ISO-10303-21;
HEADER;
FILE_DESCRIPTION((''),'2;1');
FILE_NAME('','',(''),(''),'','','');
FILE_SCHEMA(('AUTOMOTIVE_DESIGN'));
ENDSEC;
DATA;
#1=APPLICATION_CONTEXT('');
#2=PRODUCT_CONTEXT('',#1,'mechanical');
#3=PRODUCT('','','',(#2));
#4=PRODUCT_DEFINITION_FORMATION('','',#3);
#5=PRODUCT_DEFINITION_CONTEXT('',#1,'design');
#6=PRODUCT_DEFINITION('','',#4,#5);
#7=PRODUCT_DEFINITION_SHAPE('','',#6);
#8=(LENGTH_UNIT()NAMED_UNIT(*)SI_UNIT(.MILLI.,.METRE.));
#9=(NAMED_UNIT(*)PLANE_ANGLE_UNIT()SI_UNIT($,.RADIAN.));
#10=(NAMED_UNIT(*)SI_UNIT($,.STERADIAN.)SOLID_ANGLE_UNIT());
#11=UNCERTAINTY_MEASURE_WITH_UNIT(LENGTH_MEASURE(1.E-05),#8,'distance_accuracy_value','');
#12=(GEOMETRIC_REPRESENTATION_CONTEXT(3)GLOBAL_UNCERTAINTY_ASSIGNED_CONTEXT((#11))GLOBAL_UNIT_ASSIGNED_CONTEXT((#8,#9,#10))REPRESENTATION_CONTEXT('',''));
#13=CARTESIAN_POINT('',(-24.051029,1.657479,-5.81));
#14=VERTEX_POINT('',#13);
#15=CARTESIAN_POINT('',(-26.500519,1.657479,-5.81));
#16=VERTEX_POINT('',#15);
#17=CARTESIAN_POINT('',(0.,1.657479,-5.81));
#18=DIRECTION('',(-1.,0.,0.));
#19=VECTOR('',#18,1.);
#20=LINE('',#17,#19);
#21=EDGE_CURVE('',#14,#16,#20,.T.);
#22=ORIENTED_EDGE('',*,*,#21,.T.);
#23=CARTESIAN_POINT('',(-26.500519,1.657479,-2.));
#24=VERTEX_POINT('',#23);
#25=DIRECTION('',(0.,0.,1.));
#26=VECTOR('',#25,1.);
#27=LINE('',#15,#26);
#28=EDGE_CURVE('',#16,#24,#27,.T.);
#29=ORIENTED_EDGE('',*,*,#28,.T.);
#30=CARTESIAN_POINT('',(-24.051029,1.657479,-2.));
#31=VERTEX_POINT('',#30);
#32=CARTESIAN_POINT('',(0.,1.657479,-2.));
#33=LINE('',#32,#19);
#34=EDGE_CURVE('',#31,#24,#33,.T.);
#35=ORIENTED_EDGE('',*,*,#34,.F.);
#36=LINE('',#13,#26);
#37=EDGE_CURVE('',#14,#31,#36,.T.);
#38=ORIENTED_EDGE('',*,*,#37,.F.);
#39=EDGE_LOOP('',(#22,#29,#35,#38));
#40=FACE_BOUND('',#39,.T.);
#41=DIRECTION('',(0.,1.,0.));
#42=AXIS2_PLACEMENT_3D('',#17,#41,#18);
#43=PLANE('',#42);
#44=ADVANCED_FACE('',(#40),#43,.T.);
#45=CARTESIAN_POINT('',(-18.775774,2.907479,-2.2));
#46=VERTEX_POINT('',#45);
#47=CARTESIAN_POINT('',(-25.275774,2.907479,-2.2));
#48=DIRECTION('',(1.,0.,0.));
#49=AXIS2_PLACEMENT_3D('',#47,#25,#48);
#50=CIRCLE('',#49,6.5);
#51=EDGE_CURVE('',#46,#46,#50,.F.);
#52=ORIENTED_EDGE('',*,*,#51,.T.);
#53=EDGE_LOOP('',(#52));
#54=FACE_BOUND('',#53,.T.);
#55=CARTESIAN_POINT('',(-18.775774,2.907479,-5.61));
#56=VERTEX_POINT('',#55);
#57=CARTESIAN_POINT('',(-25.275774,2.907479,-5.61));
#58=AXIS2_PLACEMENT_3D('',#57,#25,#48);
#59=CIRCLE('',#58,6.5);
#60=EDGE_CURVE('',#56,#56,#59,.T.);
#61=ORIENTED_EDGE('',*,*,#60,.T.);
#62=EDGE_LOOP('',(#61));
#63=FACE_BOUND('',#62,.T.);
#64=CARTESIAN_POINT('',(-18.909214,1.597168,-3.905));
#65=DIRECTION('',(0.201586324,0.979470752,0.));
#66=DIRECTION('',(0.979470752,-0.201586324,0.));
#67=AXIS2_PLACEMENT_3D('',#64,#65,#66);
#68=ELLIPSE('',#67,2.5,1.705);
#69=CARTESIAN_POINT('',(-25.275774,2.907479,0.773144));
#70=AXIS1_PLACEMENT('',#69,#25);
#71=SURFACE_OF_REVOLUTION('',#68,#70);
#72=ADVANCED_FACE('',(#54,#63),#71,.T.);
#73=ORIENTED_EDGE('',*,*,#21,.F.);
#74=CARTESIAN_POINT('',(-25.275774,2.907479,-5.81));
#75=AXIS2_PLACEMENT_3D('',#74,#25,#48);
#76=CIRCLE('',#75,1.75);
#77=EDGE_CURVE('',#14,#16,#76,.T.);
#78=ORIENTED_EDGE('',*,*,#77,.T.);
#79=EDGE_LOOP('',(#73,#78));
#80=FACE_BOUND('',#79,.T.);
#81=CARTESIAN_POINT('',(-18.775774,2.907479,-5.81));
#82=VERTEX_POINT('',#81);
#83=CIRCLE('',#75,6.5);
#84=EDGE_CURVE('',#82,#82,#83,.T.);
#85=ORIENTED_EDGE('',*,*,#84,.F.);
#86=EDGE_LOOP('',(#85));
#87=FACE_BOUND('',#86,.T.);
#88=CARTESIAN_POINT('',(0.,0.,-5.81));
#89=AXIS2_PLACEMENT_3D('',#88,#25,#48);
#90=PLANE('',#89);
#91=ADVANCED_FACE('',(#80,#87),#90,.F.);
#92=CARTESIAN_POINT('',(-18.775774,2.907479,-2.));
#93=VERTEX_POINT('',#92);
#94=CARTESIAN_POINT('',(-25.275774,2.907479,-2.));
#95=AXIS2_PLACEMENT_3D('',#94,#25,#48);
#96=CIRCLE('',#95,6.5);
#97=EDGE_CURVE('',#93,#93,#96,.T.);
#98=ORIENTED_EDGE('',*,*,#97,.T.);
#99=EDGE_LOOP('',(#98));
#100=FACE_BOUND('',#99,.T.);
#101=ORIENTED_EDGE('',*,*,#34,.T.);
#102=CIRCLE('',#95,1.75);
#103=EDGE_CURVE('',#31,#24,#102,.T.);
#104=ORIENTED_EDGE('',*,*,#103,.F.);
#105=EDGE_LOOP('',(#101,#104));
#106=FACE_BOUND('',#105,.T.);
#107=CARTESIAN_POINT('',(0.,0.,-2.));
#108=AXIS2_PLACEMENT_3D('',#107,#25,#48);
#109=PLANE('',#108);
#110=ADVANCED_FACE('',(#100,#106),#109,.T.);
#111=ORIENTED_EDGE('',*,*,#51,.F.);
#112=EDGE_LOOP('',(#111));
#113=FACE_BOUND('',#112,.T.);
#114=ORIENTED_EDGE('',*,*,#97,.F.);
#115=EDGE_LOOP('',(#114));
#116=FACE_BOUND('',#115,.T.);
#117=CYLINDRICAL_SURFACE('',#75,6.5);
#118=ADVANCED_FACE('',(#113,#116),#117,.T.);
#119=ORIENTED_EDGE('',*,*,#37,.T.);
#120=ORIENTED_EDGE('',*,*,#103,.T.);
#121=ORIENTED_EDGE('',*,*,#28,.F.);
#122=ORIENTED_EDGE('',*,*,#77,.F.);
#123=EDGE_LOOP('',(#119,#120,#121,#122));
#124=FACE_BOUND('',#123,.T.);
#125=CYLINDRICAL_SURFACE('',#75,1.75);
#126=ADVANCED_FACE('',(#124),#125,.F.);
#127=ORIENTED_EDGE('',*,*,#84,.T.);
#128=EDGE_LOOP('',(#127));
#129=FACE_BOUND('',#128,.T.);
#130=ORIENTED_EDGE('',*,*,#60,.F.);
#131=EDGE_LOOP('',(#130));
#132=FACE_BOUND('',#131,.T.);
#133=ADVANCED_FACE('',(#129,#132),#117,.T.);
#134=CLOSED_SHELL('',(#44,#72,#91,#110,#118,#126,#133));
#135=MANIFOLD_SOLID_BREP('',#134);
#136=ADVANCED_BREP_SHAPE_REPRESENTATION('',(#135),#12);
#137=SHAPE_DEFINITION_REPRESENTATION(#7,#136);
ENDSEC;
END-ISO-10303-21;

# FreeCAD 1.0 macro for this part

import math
import FreeCAD as App
import Part
import Sketcher

V = App.Vector
Q = App.Units.Quantity

doc = App.newDocument("Part")
body = doc.addObject("PartDesign::Body", "Body")

# Sketch on XY plane
sketch1 = body.newObject("Sketcher::SketchObject", "Sketch")
sketch1.AttachmentSupport = (doc.getObject("XY_Plane"), [""])
sketch1.MapMode = "FlatFace"
sketch1.AttachmentOffset = App.Placement(V(0, 0, -2), App.Rotation())
sketch1.addGeometry([
    Part.Circle(V(-25.3, 2.9, 0), V(0, 0, 1), 6.5),
    Part.ArcOfCircle(Part.Circle(V(-25.3, 2.9, 0), V(0, 0, 1), 1.8), math.radians(-46), math.radians(226)),
    Part.LineSegment(V(-24.1, 1.7, 0), V(-26.5, 1.7, 0)),
], False)
sketch1.addConstraint([
    Sketcher.Constraint("Coincident", 1, 1, 2, 1),
    Sketcher.Constraint("Coincident", 2, 2, 1, 2),
    Sketcher.Constraint("Horizontal", 2),
    Sketcher.Constraint("Coincident", 1, 3, 0, 3),
    Sketcher.Constraint("Diameter", 0, Q("13 mm")),
    Sketcher.Constraint("Radius", 1, Q("1.75 mm")),
    Sketcher.Constraint("DistanceY", 1, 1, 0, 3, Q("1.25 mm")),
    Sketcher.Constraint("DistanceY", -1, 1, 0, 3, Q("2.907479 mm")),
    Sketcher.Constraint("DistanceX", 1, 1, -1, 1, Q("24.051029 mm")),
])
pad1 = body.newObject("PartDesign::Pad", "Pad")
pad1.Profile = sketch1
pad1.Length = 3.81
pad1.Reversed = True

# Sketch on an angled plane
sketch2 = body.newObject("Sketcher::SketchObject", "Sketch001")
sketch2.Placement = App.Placement(V(-0.41525, -2.209102, 0), App.Rotation(V(-0.979470752, 0.201586324, 0), V(0, 0, 1), V(0.201586324, 0.979470752, 0), "ZXY"))
sketch2.addGeometry(Part.Ellipse(V(16.381589, -3.905, 0), V(18.881589, -5.61, 0), V(18.881589, -3.905, 0)), False)
sketch2.addGeometry(Part.LineSegment(V(25.381589, -3.905, 0), V(25.381589, -13.905, 0)), True)  # axis
sketch2.addConstraint([
    Sketcher.Constraint("Block", 0),
    Sketcher.Constraint("Vertical", 1),
    Sketcher.Constraint("DistanceY", 1, 2, 1, 1, Q("10 mm")),
    Sketcher.Constraint("DistanceY", 1, 1, -1, 1, Q("3.905 mm")),
    Sketcher.Constraint("DistanceX", -1, 1, 1, 1, Q("25.381589 mm")),
])
groove = body.newObject("PartDesign::Groove", "Groove")
groove.Profile = sketch2
groove.ReferenceAxis = (sketch2, ["Axis0"])
groove.Angle = 360

doc.recompute()
